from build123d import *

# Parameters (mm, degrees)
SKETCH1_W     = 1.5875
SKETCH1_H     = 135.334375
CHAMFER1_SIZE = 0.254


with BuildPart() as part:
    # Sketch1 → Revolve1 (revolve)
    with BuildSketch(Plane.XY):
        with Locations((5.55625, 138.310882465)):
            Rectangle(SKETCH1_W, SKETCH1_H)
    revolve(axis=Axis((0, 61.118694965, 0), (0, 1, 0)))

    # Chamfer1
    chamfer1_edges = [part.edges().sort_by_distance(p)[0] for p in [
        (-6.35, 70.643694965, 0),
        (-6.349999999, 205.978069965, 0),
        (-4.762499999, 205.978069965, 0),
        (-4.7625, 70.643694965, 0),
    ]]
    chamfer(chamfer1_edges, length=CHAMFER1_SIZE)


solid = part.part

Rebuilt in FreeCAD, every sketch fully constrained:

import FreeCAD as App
import Part
import Sketcher
from FreeCAD import Vector
Q = App.Units.Quantity


def edges_at(feature, points):
    """Names of the edges that pass closest to the given points."""
    edges = feature.Shape.Edges
    near = lambda p: min(range(len(edges)), key=lambda i: edges[i].distToShape(Part.Vertex(*p))[0])
    return sorted({f"Edge{near(p) + 1}" for p in points})


def add_polygon(sketch, points):
    """Adds a closed chain of lines whose ends are joined by coincident constraints."""
    first, n = sketch.GeometryCount, len(points)
    for a, b in zip(points, points[1:] + points[:1]):
        sketch.addGeometry(Part.LineSegment(App.Vector(*a, 0), App.Vector(*b, 0)), False)
    for i in range(n):
        sketch.addConstraint(Sketcher.Constraint("Coincident", first + i, 2, first + (i + 1) % n, 1))

doc = App.newDocument("Part")
body = doc.addObject("PartDesign::Body", "Body")

sketch1 = doc.addObject("Sketcher::SketchObject", "Sketch")
body.addObject(sketch1)
sketch1.AttachmentSupport = (doc.XY_Plane, [""])
sketch1.MapMode = "FlatFace"
add_polygon(sketch1, [(4.8, 206), (4.8, 70.6), (6.3, 70.6), (6.3, 206)])
sketch1.addConstraint(Sketcher.Constraint("Vertical", 0))
sketch1.addConstraint(Sketcher.Constraint("Horizontal", 1))
sketch1.addConstraint(Sketcher.Constraint("Vertical", 2))
sketch1.addConstraint(Sketcher.Constraint("Horizontal", 3))
sketch1.addConstraint(Sketcher.Constraint("DistanceX", 1, 1, 1, 2, Q("0.0625 in")))
sketch1.addConstraint(Sketcher.Constraint("DistanceY", 0, 2, 0, 1, Q("5.328125 in")))
sketch1.addConstraint(Sketcher.Constraint("DistanceX", -1, 1, 1, 2, Q("0.25 in")))
sketch1.addConstraint(Sketcher.Constraint("DistanceY", -1, 1, 2, 2, 205.97807))
revolution = doc.addObject("PartDesign::Revolution", "Revolution")
body.addObject(revolution)
revolution.Profile = sketch1
revolution.ReferenceAxis = (sketch1, ["V_Axis"])
revolution.Angle = 360
doc.recompute()

chamfer = doc.addObject("PartDesign::Chamfer", "Chamfer")
body.addObject(chamfer)
chamfer.Base = (revolution, edges_at(revolution, [
    (-6.35, 70.644, 0),
    (-6.35, 205.978, 0),
    (-4.763, 205.978, 0),
    (-4.763, 70.644, 0),
]))
chamfer.Size = Q("0.01 in")

doc.recompute()
